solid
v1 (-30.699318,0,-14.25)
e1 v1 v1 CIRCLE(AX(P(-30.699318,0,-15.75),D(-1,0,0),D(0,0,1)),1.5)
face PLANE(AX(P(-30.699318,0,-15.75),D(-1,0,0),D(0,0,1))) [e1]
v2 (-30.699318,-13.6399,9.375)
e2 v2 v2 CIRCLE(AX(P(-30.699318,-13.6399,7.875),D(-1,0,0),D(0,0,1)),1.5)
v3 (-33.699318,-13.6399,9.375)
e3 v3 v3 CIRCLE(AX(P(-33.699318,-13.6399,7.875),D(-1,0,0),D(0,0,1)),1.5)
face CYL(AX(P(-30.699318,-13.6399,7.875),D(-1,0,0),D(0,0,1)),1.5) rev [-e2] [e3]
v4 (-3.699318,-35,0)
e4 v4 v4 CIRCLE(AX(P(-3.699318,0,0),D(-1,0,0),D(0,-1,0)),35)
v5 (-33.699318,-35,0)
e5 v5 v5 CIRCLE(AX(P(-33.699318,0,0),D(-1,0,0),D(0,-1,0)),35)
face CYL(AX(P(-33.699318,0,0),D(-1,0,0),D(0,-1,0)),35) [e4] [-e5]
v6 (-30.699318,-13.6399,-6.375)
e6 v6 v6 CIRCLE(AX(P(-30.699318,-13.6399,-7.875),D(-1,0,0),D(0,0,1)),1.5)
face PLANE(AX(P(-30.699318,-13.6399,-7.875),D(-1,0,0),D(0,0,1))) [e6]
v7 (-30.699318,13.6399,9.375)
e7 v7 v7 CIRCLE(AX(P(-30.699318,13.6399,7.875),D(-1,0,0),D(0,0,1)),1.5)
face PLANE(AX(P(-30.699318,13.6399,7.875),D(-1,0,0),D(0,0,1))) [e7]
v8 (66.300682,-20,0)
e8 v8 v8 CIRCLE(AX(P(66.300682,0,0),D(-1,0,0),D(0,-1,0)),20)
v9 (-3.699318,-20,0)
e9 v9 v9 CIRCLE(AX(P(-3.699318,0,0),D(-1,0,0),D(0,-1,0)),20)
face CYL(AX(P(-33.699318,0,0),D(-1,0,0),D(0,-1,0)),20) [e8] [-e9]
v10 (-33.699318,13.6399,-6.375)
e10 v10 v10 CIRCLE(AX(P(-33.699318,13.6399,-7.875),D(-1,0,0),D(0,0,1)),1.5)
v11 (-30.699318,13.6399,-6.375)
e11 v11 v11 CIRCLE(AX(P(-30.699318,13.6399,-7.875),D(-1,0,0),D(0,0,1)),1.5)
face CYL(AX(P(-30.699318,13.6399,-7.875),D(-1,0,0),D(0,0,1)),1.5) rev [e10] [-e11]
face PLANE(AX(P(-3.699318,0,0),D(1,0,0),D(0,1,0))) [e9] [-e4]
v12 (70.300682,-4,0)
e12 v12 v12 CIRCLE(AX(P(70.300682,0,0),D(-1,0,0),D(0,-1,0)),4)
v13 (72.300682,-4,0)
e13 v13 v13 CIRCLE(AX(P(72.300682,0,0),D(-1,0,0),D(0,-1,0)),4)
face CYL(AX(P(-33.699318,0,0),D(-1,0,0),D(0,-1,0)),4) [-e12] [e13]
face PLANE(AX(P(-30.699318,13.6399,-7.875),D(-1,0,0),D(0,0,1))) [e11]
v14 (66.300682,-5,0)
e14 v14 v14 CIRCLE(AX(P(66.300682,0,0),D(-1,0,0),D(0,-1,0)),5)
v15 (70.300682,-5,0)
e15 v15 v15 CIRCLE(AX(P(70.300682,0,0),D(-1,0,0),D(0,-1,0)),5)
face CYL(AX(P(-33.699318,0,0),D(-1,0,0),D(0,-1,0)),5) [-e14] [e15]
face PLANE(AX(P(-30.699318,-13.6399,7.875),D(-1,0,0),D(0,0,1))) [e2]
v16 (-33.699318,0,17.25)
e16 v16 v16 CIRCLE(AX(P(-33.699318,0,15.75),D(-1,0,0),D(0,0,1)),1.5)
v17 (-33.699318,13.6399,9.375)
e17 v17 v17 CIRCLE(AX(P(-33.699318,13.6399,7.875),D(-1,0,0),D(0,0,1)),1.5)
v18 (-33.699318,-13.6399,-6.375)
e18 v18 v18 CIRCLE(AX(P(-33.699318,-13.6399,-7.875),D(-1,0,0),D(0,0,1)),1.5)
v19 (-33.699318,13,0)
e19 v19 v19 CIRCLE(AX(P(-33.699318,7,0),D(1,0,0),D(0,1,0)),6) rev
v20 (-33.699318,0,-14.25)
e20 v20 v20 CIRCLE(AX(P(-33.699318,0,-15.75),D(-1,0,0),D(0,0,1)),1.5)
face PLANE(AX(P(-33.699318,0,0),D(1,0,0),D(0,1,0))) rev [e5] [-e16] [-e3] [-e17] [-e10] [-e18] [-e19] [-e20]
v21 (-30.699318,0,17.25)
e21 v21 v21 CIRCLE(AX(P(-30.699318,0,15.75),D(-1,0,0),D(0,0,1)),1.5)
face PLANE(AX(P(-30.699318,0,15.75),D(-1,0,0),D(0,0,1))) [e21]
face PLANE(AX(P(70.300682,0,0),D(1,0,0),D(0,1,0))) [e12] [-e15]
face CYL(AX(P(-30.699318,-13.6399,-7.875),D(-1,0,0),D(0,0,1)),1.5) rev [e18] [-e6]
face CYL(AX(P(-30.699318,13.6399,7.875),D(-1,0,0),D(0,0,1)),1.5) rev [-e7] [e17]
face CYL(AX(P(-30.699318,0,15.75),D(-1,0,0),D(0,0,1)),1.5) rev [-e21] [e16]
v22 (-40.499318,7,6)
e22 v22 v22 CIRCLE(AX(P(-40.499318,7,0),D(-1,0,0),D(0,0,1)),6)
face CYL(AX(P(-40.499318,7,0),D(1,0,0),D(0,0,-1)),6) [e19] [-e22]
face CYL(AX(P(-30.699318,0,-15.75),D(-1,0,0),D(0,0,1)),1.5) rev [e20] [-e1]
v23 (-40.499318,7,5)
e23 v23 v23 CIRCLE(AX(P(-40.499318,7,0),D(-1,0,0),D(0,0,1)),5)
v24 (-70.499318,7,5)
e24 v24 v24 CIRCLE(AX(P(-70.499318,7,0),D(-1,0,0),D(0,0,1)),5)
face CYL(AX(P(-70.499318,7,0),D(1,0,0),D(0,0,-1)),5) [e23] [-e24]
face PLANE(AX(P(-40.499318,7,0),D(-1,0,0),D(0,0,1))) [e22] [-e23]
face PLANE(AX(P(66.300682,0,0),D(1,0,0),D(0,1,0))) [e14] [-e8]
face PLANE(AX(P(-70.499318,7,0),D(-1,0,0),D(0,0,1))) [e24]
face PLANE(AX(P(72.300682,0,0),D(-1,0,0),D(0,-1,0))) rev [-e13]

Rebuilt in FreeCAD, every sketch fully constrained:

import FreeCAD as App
import Part
import Sketcher

V = App.Vector
Q = App.Units.Quantity

doc = App.newDocument("Part")
body = doc.addObject("PartDesign::Body", "Body")

# Sketch on XY plane
sketch1 = body.newObject("Sketcher::SketchObject", "Sketch")
sketch1.AttachmentSupport = (doc.getObject("XY_Plane"), [""])
sketch1.MapMode = "FlatFace"
sketch1.addGeometry([
    Part.LineSegment(V(70.3, 4, 0), V(70.3, 5, 0)),  # 0
    Part.LineSegment(V(70.3, 5, 0), V(66.3, 5, 0)),  # 1
    Part.LineSegment(V(66.3, 5, 0), V(66.3, 20, 0)),  # 2
    Part.LineSegment(V(66.3, 20, 0), V(-3.7, 20, 0)),  # 3
    Part.LineSegment(V(-3.7, 20, 0), V(-3.7, 35, 0)),  # 4
    Part.LineSegment(V(-3.7, 35, 0), V(-33.7, 35, 0)),  # 5
    Part.LineSegment(V(-33.7, 35, 0), V(-33.7, 0, 0)),  # 6
    Part.LineSegment(V(-33.7, 0, 0), V(72.3, 0, 0)),  # 7
    Part.LineSegment(V(72.3, 0, 0), V(72.3, 4, 0)),  # 8
    Part.LineSegment(V(72.3, 4, 0), V(70.3, 4, 0)),  # 9
], False)
sketch1.addConstraint([
    Sketcher.Constraint("Coincident", 0, 2, 1, 1),
    Sketcher.Constraint("Coincident", 1, 2, 2, 1),
    Sketcher.Constraint("Coincident", 2, 2, 3, 1),
    Sketcher.Constraint("Coincident", 3, 2, 4, 1),
    Sketcher.Constraint("Coincident", 4, 2, 5, 1),
    Sketcher.Constraint("Coincident", 5, 2, 6, 1),
    Sketcher.Constraint("Coincident", 6, 2, 7, 1),
    Sketcher.Constraint("Coincident", 7, 2, 8, 1),
    Sketcher.Constraint("Coincident", 8, 2, 9, 1),
    Sketcher.Constraint("Coincident", 9, 2, 0, 1),
    Sketcher.Constraint("Vertical", 0),
    Sketcher.Constraint("Horizontal", 1),
    Sketcher.Constraint("Vertical", 2),
    Sketcher.Constraint("Horizontal", 3),
    Sketcher.Constraint("Vertical", 4),
    Sketcher.Constraint("Horizontal", 5),
    Sketcher.Constraint("Vertical", 6),
    Sketcher.Constraint("Horizontal", 7),
    Sketcher.Constraint("Vertical", 8),
    Sketcher.Constraint("Horizontal", 9),
    Sketcher.Constraint("PointOnObject", 6, 2, -1),
    Sketcher.Constraint("Equal", 2, 4),
    Sketcher.Constraint("Equal", 1, 8),
    Sketcher.Constraint("DistanceX", 1, 2, 1, 1, Q("4 mm")),
    Sketcher.Constraint("DistanceX", 3, 2, 3, 1, Q("70 mm")),
    Sketcher.Constraint("DistanceX", 5, 2, 5, 1, Q("30 mm")),
    Sketcher.Constraint("DistanceX", 7, 1, 7, 2, Q("106 mm")),
    Sketcher.Constraint("DistanceY", 0, 1, 0, 2, Q("1 mm")),
    Sketcher.Constraint("DistanceY", 2, 1, 2, 2, Q("15 mm")),
    Sketcher.Constraint("DistanceX", -1, 1, 0, 2, Q("70.300682 mm")),
])
revolution = body.newObject("PartDesign::Revolution", "Revolution")
revolution.Profile = sketch1
revolution.ReferenceAxis = (sketch1, ["H_Axis"])
revolution.Angle = 360

# Sketch on YZ plane
sketch2 = body.newObject("Sketcher::SketchObject", "Sketch001")
sketch2.AttachmentSupport = (doc.getObject("YZ_Plane"), [""])
sketch2.MapMode = "FlatFace"
sketch2.AttachmentOffset = App.Placement(V(0, 0, -33.699318), App.Rotation())
sketch2.addGeometry(Part.Circle(V(7, 0, 0), V(0, 0, 1), 6), False)
sketch2.addConstraint([
    Sketcher.Constraint("PointOnObject", 0, 3, -1),
    Sketcher.Constraint("Diameter", 0, Q("12 mm")),
    Sketcher.Constraint("DistanceX", -1, 1, 0, 3, Q("7 mm")),
])
pad1 = body.newObject("PartDesign::Pad", "Pad")
pad1.Profile = sketch2
pad1.Length = 6.8
pad1.Reversed = True

# Sketch on YZ plane
sketch3 = body.newObject("Sketcher::SketchObject", "Sketch002")
sketch3.AttachmentSupport = (doc.getObject("YZ_Plane"), [""])
sketch3.MapMode = "FlatFace"
sketch3.AttachmentOffset = App.Placement(V(0, 0, -40.499318), App.Rotation())
sketch3.addGeometry(Part.Circle(V(7, 0, 0), V(0, 0, 1), 5), False)
sketch3.addConstraint([
    Sketcher.Constraint("PointOnObject", 0, 3, -1),
    Sketcher.Constraint("Diameter", 0, Q("10 mm")),
    Sketcher.Constraint("DistanceX", -1, 1, 0, 3, Q("7 mm")),
])
pad2 = body.newObject("PartDesign::Pad", "Pad001")
pad2.Profile = sketch3
pad2.Length = 30
pad2.Reversed = True

# Sketch on YZ plane
sketch4 = body.newObject("Sketcher::SketchObject", "Sketch003")
sketch4.AttachmentSupport = (doc.getObject("YZ_Plane"), [""])
sketch4.MapMode = "FlatFace"
sketch4.AttachmentOffset = App.Placement(V(0, 0, -33.699318), App.Rotation())
sketch4.addGeometry([
    Part.Circle(V(0, -15.8, 0), V(0, 0, 1), 1.5),  # 0
    Part.Circle(V(13.6, -7.9, 0), V(0, 0, 1), 1.5),  # 1
    Part.Circle(V(13.6, 7.9, 0), V(0, 0, 1), 1.5),  # 2
    Part.Circle(V(0, 15.8, 0), V(0, 0, 1), 1.5),  # 3
    Part.Circle(V(-13.6, 7.9, 0), V(0, 0, 1), 1.5),  # 4
    Part.Circle(V(-13.6, -7.9, 0), V(0, 0, 1), 1.5),  # 5
], False)
sketch4.addConstraint([
    Sketcher.Constraint("Equal", 0, 1),
    Sketcher.Constraint("Equal", 1, 2),
    Sketcher.Constraint("Equal", 2, 3),
    Sketcher.Constraint("Equal", 3, 4),
    Sketcher.Constraint("Equal", 4, 5),
    Sketcher.Constraint("Symmetric", 0, 3, 3, 3, -1, 1),
    Sketcher.Constraint("Symmetric", 1, 3, 4, 3, -1, 1),
    Sketcher.Constraint("Symmetric", 2, 3, 5, 3, -1, 1),
    Sketcher.Constraint("Symmetric", 2, 3, 4, 3, -2),
    Sketcher.Constraint("PointOnObject", 0, 3, -2),
    Sketcher.Constraint("Diameter", 0, Q("3 mm")),
    Sketcher.Constraint("DistanceY", 0, 3, 3, 3, Q("31.5 mm")),
    Sketcher.Constraint("DistanceY", 1, 3, 2, 3, Q("15.75 mm")),
    Sketcher.Constraint("DistanceX", -1, 1, 1, 3, Q("13.6399 mm")),
])
pocket1 = body.newObject("PartDesign::Pocket", "Pocket")
pocket1.Profile = sketch4
pocket1.Length = 3
pocket1.Reversed = True

doc.recompute()
